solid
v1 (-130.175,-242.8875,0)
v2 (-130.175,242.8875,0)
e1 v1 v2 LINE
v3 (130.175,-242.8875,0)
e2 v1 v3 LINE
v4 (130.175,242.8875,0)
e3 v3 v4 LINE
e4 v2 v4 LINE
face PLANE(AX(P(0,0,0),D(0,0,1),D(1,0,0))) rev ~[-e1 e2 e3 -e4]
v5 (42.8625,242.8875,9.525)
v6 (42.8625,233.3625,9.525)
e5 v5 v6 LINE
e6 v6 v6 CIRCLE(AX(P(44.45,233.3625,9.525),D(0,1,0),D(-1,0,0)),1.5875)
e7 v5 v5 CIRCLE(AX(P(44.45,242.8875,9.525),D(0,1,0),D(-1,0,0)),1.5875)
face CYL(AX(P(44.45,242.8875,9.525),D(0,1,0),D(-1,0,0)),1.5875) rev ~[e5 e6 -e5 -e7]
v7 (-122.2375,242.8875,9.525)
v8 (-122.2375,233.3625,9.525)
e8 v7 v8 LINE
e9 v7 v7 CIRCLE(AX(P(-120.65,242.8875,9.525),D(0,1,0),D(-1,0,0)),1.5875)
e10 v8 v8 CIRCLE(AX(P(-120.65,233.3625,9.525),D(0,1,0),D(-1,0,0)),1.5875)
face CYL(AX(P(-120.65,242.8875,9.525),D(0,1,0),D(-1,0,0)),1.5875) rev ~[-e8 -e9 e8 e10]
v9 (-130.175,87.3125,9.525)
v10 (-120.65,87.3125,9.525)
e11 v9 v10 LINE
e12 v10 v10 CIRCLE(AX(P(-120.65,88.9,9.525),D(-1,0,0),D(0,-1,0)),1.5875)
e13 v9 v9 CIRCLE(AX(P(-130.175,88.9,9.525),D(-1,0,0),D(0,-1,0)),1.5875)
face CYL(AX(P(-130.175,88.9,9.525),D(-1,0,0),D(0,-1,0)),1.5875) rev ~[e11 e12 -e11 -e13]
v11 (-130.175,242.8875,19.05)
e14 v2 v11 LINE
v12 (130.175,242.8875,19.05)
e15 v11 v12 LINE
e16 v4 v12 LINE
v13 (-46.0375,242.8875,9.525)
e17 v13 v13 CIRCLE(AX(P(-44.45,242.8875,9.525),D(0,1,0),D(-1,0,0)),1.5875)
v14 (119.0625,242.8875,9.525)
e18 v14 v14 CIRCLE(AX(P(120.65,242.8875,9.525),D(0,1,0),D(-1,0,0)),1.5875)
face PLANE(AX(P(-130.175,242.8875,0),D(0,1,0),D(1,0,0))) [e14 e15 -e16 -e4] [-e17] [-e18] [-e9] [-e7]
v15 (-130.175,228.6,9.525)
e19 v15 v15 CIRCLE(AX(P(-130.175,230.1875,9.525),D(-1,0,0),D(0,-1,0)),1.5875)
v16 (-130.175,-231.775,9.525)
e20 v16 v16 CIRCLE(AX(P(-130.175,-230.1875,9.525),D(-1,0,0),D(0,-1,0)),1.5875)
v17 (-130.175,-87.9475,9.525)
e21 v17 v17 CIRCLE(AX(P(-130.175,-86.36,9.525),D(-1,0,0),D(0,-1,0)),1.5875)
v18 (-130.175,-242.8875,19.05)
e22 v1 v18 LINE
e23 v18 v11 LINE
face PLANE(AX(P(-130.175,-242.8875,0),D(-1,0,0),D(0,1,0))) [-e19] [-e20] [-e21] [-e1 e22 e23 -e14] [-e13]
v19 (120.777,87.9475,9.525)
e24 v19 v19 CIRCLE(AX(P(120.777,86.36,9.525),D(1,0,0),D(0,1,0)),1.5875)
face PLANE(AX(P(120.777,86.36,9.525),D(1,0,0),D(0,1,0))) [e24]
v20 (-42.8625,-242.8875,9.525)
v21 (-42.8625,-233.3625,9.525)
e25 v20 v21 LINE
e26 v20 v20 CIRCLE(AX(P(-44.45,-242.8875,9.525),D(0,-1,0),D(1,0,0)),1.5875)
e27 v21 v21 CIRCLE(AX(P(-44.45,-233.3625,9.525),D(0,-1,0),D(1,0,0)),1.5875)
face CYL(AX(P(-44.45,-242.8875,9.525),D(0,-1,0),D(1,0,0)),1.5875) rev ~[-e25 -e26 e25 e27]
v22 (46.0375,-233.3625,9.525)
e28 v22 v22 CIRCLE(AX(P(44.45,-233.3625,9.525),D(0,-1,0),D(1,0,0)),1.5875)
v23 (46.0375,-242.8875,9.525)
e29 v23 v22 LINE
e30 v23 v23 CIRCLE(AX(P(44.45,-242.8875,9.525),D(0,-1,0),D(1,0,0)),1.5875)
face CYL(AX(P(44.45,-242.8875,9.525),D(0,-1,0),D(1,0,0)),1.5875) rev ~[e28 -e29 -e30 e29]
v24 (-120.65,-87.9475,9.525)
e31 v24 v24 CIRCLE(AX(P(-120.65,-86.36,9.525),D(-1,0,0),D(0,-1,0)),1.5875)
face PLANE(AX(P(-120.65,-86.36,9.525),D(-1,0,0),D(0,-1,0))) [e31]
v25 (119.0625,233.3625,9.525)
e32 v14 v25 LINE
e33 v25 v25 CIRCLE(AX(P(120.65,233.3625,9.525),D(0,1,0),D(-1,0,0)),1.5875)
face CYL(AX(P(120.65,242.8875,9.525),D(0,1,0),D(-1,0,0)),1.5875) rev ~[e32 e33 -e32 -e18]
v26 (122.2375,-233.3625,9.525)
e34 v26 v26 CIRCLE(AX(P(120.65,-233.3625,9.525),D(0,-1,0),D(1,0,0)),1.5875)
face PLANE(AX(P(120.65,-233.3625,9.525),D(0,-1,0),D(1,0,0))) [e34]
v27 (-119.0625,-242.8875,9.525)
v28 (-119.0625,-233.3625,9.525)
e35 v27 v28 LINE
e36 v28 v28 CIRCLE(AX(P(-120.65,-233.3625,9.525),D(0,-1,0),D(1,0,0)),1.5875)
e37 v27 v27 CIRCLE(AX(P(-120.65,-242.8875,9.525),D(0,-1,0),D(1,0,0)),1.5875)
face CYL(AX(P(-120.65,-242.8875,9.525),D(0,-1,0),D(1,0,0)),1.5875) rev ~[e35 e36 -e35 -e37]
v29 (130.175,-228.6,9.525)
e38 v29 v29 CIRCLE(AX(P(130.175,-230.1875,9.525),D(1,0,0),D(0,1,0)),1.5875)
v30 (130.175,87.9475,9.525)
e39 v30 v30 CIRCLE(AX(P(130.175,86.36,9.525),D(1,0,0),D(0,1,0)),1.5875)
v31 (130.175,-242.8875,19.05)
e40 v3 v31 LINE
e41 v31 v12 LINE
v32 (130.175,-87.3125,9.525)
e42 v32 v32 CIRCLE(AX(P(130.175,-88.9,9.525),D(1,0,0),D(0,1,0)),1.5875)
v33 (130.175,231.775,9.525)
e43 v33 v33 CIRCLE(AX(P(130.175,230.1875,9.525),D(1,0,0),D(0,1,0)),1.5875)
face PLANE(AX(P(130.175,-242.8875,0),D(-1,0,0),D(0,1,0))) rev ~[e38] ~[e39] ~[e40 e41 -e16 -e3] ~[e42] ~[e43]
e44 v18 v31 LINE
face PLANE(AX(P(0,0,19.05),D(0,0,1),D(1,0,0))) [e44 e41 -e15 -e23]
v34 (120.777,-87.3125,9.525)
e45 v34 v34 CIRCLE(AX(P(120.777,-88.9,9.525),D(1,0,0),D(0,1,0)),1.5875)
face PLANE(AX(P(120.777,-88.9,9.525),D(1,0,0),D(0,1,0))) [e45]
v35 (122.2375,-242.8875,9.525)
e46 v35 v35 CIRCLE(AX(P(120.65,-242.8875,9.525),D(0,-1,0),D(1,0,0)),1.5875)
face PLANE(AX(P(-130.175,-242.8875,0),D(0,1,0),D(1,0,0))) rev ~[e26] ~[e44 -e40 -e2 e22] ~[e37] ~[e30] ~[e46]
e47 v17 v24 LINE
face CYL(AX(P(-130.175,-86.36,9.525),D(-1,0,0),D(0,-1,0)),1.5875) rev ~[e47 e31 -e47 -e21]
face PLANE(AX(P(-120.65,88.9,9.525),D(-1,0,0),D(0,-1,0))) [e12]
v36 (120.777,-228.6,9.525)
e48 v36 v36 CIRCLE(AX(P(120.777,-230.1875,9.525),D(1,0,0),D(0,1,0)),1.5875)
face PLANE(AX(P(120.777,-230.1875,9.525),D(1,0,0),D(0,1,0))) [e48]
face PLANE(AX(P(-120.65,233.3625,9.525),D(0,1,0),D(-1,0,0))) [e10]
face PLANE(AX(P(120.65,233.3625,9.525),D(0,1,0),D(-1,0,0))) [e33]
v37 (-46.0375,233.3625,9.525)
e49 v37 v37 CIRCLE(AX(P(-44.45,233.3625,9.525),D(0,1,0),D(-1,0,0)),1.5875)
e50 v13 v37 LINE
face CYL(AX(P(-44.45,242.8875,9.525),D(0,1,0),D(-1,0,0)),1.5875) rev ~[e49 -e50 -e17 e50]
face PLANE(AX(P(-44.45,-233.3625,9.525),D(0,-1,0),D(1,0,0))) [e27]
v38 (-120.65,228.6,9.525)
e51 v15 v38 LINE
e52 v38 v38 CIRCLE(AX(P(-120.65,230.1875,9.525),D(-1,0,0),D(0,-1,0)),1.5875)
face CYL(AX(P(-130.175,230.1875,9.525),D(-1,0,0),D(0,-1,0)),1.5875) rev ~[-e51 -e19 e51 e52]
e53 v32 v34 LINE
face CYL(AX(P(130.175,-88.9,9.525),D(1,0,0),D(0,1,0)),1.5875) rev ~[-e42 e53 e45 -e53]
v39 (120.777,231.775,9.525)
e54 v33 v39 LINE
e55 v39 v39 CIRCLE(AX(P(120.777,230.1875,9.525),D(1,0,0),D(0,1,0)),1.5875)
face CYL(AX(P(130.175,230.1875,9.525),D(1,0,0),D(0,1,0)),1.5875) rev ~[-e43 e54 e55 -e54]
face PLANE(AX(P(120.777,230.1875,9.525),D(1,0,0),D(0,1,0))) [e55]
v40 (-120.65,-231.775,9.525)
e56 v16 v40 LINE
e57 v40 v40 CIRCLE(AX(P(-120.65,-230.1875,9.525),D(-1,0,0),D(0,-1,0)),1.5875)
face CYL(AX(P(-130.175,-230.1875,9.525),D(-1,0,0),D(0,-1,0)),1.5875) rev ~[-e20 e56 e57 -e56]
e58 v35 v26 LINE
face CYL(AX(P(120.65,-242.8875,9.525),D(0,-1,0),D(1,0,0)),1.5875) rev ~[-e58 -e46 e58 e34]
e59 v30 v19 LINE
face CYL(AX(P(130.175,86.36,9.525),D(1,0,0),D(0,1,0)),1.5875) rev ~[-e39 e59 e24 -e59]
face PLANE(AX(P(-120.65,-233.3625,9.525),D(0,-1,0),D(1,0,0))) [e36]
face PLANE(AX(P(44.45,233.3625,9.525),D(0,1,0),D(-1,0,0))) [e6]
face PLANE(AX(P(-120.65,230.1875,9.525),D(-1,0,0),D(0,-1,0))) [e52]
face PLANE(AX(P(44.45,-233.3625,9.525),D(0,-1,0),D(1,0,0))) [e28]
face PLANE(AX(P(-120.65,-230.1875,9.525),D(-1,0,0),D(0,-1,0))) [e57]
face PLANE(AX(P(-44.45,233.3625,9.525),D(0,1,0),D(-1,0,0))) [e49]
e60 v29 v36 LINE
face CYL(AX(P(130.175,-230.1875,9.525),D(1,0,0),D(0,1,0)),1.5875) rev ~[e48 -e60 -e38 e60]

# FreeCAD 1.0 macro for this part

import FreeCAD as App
import Part
import Sketcher
Q = App.Units.Quantity


def add_polygon(sketch, points):
    """Adds a closed chain of lines whose ends are joined by coincident constraints."""
    first, n = sketch.GeometryCount, len(points)
    for a, b in zip(points, points[1:] + points[:1]):
        sketch.addGeometry(Part.LineSegment(App.Vector(*a, 0), App.Vector(*b, 0)), False)
    for i in range(n):
        sketch.addConstraint(Sketcher.Constraint("Coincident", first + i, 2, first + (i + 1) % n, 1))

doc = App.newDocument("Part")
body = doc.addObject("PartDesign::Body", "Body")

# Sketch on XY plane
sketch1 = body.newObject("Sketcher::SketchObject", "Sketch")
sketch1.AttachmentSupport = (doc.getObject("XY_Plane"), [""])
sketch1.MapMode = "FlatFace"
add_polygon(sketch1, [(-130.175, 242.8875), (-130.175, -242.8875), (130.175, -242.8875), (130.175, 242.8875)])  # lines 0-3
sketch1.addConstraint([
    Sketcher.Constraint("Vertical", 0),
    Sketcher.Constraint("Horizontal", 1),
    Sketcher.Constraint("Vertical", 2),
    Sketcher.Constraint("Horizontal", 3),
    Sketcher.Constraint("Symmetric", 0, 2, 2, 2, -1, 1),
    Sketcher.Constraint("DistanceX", 1, 1, 1, 2, Q("10.25 in")),
    Sketcher.Constraint("DistanceY", 0, 2, 0, 1, Q("19.125 in")),
])
pad1 = body.newObject("PartDesign::Pad", "Pad")
pad1.Profile = sketch1
pad1.Length = Q("0.75 in")

# Sketch on YZ plane
sketch2 = body.newObject("Sketcher::SketchObject", "Sketch001")
sketch2.AttachmentSupport = (doc.getObject("YZ_Plane"), [""])
sketch2.MapMode = "FlatFace"
sketch2.AttachmentOffset = App.Placement(App.Vector(0, 0, 5.125 * 25.4), App.Rotation())
sketch2.addGeometry([
    Part.Circle(App.Vector(230.1875, 9.525, 0), App.Vector(0, 0, 1), 1.5875),
    Part.Circle(App.Vector(86.36, 9.525, 0), App.Vector(0, 0, 1), 1.5875),
    Part.Circle(App.Vector(-88.9, 9.525, 0), App.Vector(0, 0, 1), 1.5875),
    Part.Circle(App.Vector(-230.1875, 9.525, 0), App.Vector(0, 0, 1), 1.5875),
], False)
sketch2.addConstraint([
    Sketcher.Constraint("Equal", 0, 1),
    Sketcher.Constraint("Equal", 1, 2),
    Sketcher.Constraint("Equal", 2, 3),
    Sketcher.Constraint("Symmetric", 0, 3, 3, 3, -2),
    Sketcher.Constraint("Horizontal", 0, 3, 1, 3),
    Sketcher.Constraint("Horizontal", 1, 3, 2, 3),
    Sketcher.Constraint("Diameter", 0, Q("0.125 in")),
    Sketcher.Constraint("DistanceX", -1, 1, 1, 3, Q("3.4 in")),
    Sketcher.Constraint("DistanceX", 2, 3, -1, 1, Q("3.5 in")),
    Sketcher.Constraint("DistanceX", -1, 1, 0, 3, Q("9.0625 in")),
    Sketcher.Constraint("DistanceY", -1, 1, 0, 3, Q("0.375 in")),
])
pocket1 = body.newObject("PartDesign::Pocket", "Pocket")
pocket1.Profile = sketch2
pocket1.Length = Q("0.37 in")

# Sketch on YZ plane
sketch3 = body.newObject("Sketcher::SketchObject", "Sketch002")
sketch3.AttachmentSupport = (doc.getObject("YZ_Plane"), [""])
sketch3.MapMode = "FlatFace"
sketch3.AttachmentOffset = App.Placement(App.Vector(0, 0, -5.125 * 25.4), App.Rotation())
sketch3.addGeometry([
    Part.Circle(App.Vector(230.1875, 9.525, 0), App.Vector(0, 0, 1), 1.5875),
    Part.Circle(App.Vector(88.9, 9.525, 0), App.Vector(0, 0, 1), 1.5875),
    Part.Circle(App.Vector(-86.36, 9.525, 0), App.Vector(0, 0, 1), 1.5875),
    Part.Circle(App.Vector(-230.1875, 9.525, 0), App.Vector(0, 0, 1), 1.5875),
], False)
sketch3.addConstraint([
    Sketcher.Constraint("Equal", 0, 1),
    Sketcher.Constraint("Equal", 1, 2),
    Sketcher.Constraint("Equal", 2, 3),
    Sketcher.Constraint("Symmetric", 0, 3, 3, 3, -2),
    Sketcher.Constraint("Horizontal", 0, 3, 1, 3),
    Sketcher.Constraint("Horizontal", 1, 3, 2, 3),
    Sketcher.Constraint("Diameter", 0, Q("0.125 in")),
    Sketcher.Constraint("DistanceX", -1, 1, 1, 3, Q("3.5 in")),
    Sketcher.Constraint("DistanceX", 2, 3, -1, 1, Q("3.4 in")),
    Sketcher.Constraint("DistanceX", -1, 1, 0, 3, Q("9.0625 in")),
    Sketcher.Constraint("DistanceY", -1, 1, 0, 3, Q("0.375 in")),
])
pocket2 = body.newObject("PartDesign::Pocket", "Pocket001")
pocket2.Profile = sketch3
pocket2.Length = Q("0.375 in")
pocket2.Reversed = True

# Sketch on XZ plane
sketch4 = body.newObject("Sketcher::SketchObject", "Sketch003")
sketch4.AttachmentSupport = (doc.getObject("XZ_Plane"), [""])
sketch4.MapMode = "FlatFace"
sketch4.AttachmentOffset = App.Placement(App.Vector(0, 0, -9.5625 * 25.4), App.Rotation())
sketch4.addGeometry([
    Part.Circle(App.Vector(120.65, 9.525, 0), App.Vector(0, 0, 1), 1.5875),
    Part.Circle(App.Vector(44.45, 9.525, 0), App.Vector(0, 0, 1), 1.5875),
    Part.Circle(App.Vector(-44.45, 9.525, 0), App.Vector(0, 0, 1), 1.5875),
    Part.Circle(App.Vector(-120.65, 9.525, 0), App.Vector(0, 0, 1), 1.5875),
], False)
sketch4.addConstraint([
    Sketcher.Constraint("Equal", 0, 1),
    Sketcher.Constraint("Equal", 1, 2),
    Sketcher.Constraint("Equal", 2, 3),
    Sketcher.Constraint("Symmetric", 1, 3, 2, 3, -2),
    Sketcher.Constraint("Symmetric", 0, 3, 3, 3, -2),
    Sketcher.Constraint("Horizontal", 0, 3, 1, 3),
    Sketcher.Constraint("Diameter", 0, Q("0.125 in")),
    Sketcher.Constraint("DistanceX", 1, 3, 0, 3, Q("3 in")),
    Sketcher.Constraint("DistanceX", 2, 3, 1, 3, Q("3.5 in")),
    Sketcher.Constraint("DistanceY", -1, 1, 0, 3, Q("0.375 in")),
])
pocket3 = body.newObject("PartDesign::Pocket", "Pocket002")
pocket3.Profile = sketch4
pocket3.Length = Q("0.375 in")
pocket3.Reversed = True

# Sketch on XZ plane
sketch5 = body.newObject("Sketcher::SketchObject", "Sketch004")
sketch5.AttachmentSupport = (doc.getObject("XZ_Plane"), [""])
sketch5.MapMode = "FlatFace"
sketch5.AttachmentOffset = App.Placement(App.Vector(0, 0, 9.5625 * 25.4), App.Rotation())
sketch5.addGeometry([
    Part.Circle(App.Vector(120.65, 9.525, 0), App.Vector(0, 0, 1), 1.5875),
    Part.Circle(App.Vector(44.45, 9.525, 0), App.Vector(0, 0, 1), 1.5875),
    Part.Circle(App.Vector(-44.45, 9.525, 0), App.Vector(0, 0, 1), 1.5875),
    Part.Circle(App.Vector(-120.65, 9.525, 0), App.Vector(0, 0, 1), 1.5875),
], False)
sketch5.addConstraint([
    Sketcher.Constraint("Equal", 0, 1),
    Sketcher.Constraint("Equal", 1, 2),
    Sketcher.Constraint("Equal", 2, 3),
    Sketcher.Constraint("Symmetric", 1, 3, 2, 3, -2),
    Sketcher.Constraint("Symmetric", 0, 3, 3, 3, -2),
    Sketcher.Constraint("Horizontal", 0, 3, 1, 3),
    Sketcher.Constraint("Diameter", 0, Q("0.125 in")),
    Sketcher.Constraint("DistanceX", 1, 3, 0, 3, Q("3 in")),
    Sketcher.Constraint("DistanceX", 2, 3, 1, 3, Q("3.5 in")),
    Sketcher.Constraint("DistanceY", -1, 1, 0, 3, Q("0.375 in")),
])
pocket4 = body.newObject("PartDesign::Pocket", "Pocket003")
pocket4.Profile = sketch5
pocket4.Length = Q("0.375 in")

doc.recompute()
